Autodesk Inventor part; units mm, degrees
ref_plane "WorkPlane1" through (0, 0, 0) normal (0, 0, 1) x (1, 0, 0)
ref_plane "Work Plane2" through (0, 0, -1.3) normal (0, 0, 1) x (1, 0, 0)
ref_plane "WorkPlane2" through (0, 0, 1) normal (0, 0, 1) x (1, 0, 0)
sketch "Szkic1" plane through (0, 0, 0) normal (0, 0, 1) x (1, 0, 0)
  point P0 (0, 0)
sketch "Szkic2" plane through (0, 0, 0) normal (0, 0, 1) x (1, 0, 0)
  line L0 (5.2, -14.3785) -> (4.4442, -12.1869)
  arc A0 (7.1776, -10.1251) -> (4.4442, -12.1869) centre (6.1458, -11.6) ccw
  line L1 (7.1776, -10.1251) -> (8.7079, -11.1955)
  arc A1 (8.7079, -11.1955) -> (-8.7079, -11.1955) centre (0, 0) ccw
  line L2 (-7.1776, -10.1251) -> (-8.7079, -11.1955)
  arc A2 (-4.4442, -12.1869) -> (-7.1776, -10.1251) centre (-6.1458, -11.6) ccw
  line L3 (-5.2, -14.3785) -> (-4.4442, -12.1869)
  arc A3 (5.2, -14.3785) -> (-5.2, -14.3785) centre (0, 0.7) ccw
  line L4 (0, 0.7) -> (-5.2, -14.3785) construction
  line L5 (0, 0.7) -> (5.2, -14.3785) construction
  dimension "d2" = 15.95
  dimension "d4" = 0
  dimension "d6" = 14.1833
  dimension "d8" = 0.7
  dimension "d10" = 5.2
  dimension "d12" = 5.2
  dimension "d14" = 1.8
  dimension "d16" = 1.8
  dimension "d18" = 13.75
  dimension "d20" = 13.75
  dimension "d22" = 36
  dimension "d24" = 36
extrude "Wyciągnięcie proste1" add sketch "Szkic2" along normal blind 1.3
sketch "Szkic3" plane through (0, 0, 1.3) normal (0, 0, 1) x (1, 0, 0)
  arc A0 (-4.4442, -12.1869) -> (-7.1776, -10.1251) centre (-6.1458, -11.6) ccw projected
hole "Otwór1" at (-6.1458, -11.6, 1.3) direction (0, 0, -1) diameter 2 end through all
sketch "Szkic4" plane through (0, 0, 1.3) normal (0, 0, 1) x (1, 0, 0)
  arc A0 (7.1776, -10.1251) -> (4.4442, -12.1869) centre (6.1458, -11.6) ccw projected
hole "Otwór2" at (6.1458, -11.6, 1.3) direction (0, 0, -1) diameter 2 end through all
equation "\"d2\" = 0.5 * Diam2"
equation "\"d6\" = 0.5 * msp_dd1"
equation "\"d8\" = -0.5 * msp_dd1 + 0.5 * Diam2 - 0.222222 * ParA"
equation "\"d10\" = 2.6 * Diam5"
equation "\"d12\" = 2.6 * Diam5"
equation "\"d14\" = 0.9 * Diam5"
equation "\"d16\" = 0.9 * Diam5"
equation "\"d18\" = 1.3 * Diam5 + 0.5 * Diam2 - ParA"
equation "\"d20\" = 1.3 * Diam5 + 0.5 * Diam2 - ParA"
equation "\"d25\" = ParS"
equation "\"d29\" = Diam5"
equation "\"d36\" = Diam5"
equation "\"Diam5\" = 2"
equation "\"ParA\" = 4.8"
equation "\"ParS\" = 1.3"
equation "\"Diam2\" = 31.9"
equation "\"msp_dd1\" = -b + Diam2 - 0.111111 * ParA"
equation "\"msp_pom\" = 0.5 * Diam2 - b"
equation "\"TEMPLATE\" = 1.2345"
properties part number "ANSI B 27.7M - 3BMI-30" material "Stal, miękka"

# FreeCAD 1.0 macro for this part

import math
import FreeCAD as App
import Part
import Sketcher

V = App.Vector
Q = App.Units.Quantity

doc = App.newDocument("Part")
body = doc.addObject("PartDesign::Body", "Body")

sketch1 = body.newObject("Sketcher::SketchObject", "Sketch")
sketch1.AttachmentSupport = (doc.getObject("XY_Plane"), [""])
sketch1.MapMode = "FlatFace"
sketch1.addGeometry([
    Part.LineSegment(V(4.4442, -12.1869, 0), V(5.2, -14.3785, 0)),
    Part.ArcOfCircle(Part.Circle(V(0, 0.7, 0), V(0, 0, 1), 15.949958), math.radians(-70.972637), math.radians(250.972637)),
    Part.LineSegment(V(-5.2, -14.3785, 0), V(-4.4442, -12.1869, 0)),
    Part.ArcOfCircle(Part.Circle(V(-6.1458, -11.6, 0), V(0, 0, 1), 1.799971), math.radians(-19.029861), math.radians(124.975592)),
    Part.LineSegment(V(-7.1776, -10.1251, 0), V(-8.7079, -11.1955, 0)),
    Part.ArcOfCircle(Part.Circle(V(0, 0, 0), V(0, 0, 1), 14.183326), math.radians(-52.124095), math.radians(232.124095)),
    Part.LineSegment(V(8.7079, -11.1955, 0), V(7.1776, -10.1251, 0)),
    Part.ArcOfCircle(Part.Circle(V(6.1458, -11.6, 0), V(0, 0, 1), 1.799984), math.radians(55.024408), math.radians(199.029861)),
], False)
sketch1.addConstraint([
    Sketcher.Constraint("Coincident", 0, 2, 1, 1),
    Sketcher.Constraint("Coincident", 1, 2, 2, 1),
    Sketcher.Constraint("Tangent", 2, 2, 3, 1),
    Sketcher.Constraint("Tangent", 3, 2, 4, 1),
    Sketcher.Constraint("Coincident", 4, 2, 5, 2),
    Sketcher.Constraint("Coincident", 5, 1, 6, 1),
    Sketcher.Constraint("Tangent", 6, 2, 7, 1),
    Sketcher.Constraint("Tangent", 7, 2, 0, 1),
    Sketcher.Constraint("Coincident", 5, 3, -1, 1),
    Sketcher.Constraint("Equal", 3, 7),
    Sketcher.Constraint("Symmetric", 3, 3, 7, 3, -2),
    Sketcher.Constraint("Symmetric", 0, 2, 1, 2, -2),
    Sketcher.Constraint("Horizontal", 4, 2, 5, 1),
    Sketcher.Constraint("Radius", 3, Q("1.8 mm")),
    Sketcher.Constraint("Radius", 1, Q("15.95 mm")),
    Sketcher.Constraint("DistanceY", -1, 1, 1, 3, Q("0.7 mm")),
    Sketcher.Constraint("DistanceX", -1, 1, 0, 2, Q("5.2 mm")),
    Sketcher.Constraint("Radius", 5, Q("14.1833 mm")),
    Sketcher.Constraint("DistanceY", 3, 3, -1, 1, Q("11.6 mm")),
    Sketcher.Constraint("DistanceX", 2, 2, 7, 3, Q("10.59 mm")),
    Sketcher.Constraint("DistanceY", 3, 2, -1, 1, Q("10.125 mm")),
])
pad1 = body.newObject("PartDesign::Pad", "Pad")
pad1.Profile = sketch1
pad1.Length = 1.3

sketch2 = body.newObject("Sketcher::SketchObject", "Sketch001")
sketch2.AttachmentSupport = (doc.getObject("XY_Plane"), [""])
sketch2.MapMode = "FlatFace"
sketch2.AttachmentOffset = App.Placement(V(0, 0, 1.3), App.Rotation())
sketch2.addGeometry(Part.Circle(V(-6.1458, -11.6, 0), V(0, 0, 1), 1), False)
sketch2.addConstraint([
    Sketcher.Constraint("Diameter", 0, Q("2 mm")),
    Sketcher.Constraint("DistanceY", 0, 3, -1, 1, Q("11.6 mm")),
    Sketcher.Constraint("DistanceX", 0, 3, -1, 1, Q("6.1458 mm")),
])
doc.recompute()
hole = body.newObject("PartDesign::Hole", "Hole")
hole.Profile = sketch2
hole.ThreadType = "None"
hole.Diameter = 2
hole.DepthType = "ThroughAll"

sketch3 = body.newObject("Sketcher::SketchObject", "Sketch002")
sketch3.AttachmentSupport = (doc.getObject("XY_Plane"), [""])
sketch3.MapMode = "FlatFace"
sketch3.AttachmentOffset = App.Placement(V(0, 0, 1.3), App.Rotation())
sketch3.addGeometry(Part.Circle(V(6.1458, -11.6, 0), V(0, 0, 1), 1), False)
sketch3.addConstraint([
    Sketcher.Constraint("Diameter", 0, Q("2 mm")),
    Sketcher.Constraint("DistanceY", 0, 3, -1, 1, Q("11.6 mm")),
    Sketcher.Constraint("DistanceX", -1, 1, 0, 3, Q("6.1458 mm")),
])
doc.recompute()
hole2 = body.newObject("PartDesign::Hole", "Hole001")
hole2.Profile = sketch3
hole2.ThreadType = "None"
hole2.Diameter = 2
hole2.DepthType = "ThroughAll"

doc.recompute()
